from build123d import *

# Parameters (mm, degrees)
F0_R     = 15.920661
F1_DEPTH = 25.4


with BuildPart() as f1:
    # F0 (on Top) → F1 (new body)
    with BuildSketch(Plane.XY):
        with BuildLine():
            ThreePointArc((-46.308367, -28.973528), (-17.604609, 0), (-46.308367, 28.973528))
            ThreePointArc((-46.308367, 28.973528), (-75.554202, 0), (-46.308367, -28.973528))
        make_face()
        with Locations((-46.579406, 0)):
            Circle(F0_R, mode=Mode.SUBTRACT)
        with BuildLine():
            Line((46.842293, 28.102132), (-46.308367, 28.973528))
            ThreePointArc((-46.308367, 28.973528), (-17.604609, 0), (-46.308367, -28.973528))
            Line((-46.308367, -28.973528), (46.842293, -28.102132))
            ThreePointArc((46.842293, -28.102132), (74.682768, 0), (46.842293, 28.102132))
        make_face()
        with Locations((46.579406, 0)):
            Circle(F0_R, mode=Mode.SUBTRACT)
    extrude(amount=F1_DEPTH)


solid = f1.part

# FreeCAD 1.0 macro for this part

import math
import FreeCAD as App
import Part
import Sketcher
from FreeCAD import Vector
Q = App.Units.Quantity

doc = App.newDocument("Part")
body = doc.addObject("PartDesign::Body", "Body")

# Sketch on XY plane
sketch1 = body.newObject("Sketcher::SketchObject", "Sketch")
sketch1.AttachmentSupport = (doc.getObject("XY_Plane"), [""])
sketch1.MapMode = "FlatFace"
sketch1.addGeometry([
    Part.ArcOfCircle(Part.Circle(Vector(-47, 0, 0), Vector(0, 0, 1), 29), math.radians(89), math.radians(271)),  # 0
    Part.LineSegment(Vector(-46, -29, 0), Vector(47, -28, 0)),  # 1
    Part.ArcOfCircle(Part.Circle(Vector(47, 0, 0), Vector(0, 0, 1), 28), math.radians(-89), math.radians(89)),  # 2
    Part.LineSegment(Vector(47, 28, 0), Vector(-46, 29, 0)),  # 3
    Part.Circle(Vector(-47, 0, 0), Vector(0, 0, 1), 16),  # 4
    Part.Circle(Vector(47, 0, 0), Vector(0, 0, 1), 16),  # 5
], False)
sketch1.addConstraint([
    Sketcher.Constraint("Tangent", 0, 2, 1, 1),
    Sketcher.Constraint("Tangent", 1, 2, 2, 1),
    Sketcher.Constraint("Tangent", 2, 2, 3, 1),
    Sketcher.Constraint("Tangent", 3, 2, 0, 1),
    Sketcher.Constraint("Coincident", 4, 3, 0, 3),
    Sketcher.Constraint("Coincident", 5, 3, 2, 3),
    Sketcher.Constraint("Equal", 4, 5),
    Sketcher.Constraint("Symmetric", 0, 3, 2, 3, -1, 1),
    Sketcher.Constraint("PointOnObject", 0, 3, -1),
    Sketcher.Constraint("Radius", 2, Q("28.103362 mm")),
    Sketcher.Constraint("Diameter", 4, Q("31.841322 mm")),
    Sketcher.Constraint("Radius", 0, Q("28.974796 mm")),
    Sketcher.Constraint("DistanceX", 4, 3, 1, 2, Q("93.421699 mm")),
])
pad1 = body.newObject("PartDesign::Pad", "Pad")
pad1.Profile = sketch1
pad1.Length = Q("1 in")

doc.recompute()
